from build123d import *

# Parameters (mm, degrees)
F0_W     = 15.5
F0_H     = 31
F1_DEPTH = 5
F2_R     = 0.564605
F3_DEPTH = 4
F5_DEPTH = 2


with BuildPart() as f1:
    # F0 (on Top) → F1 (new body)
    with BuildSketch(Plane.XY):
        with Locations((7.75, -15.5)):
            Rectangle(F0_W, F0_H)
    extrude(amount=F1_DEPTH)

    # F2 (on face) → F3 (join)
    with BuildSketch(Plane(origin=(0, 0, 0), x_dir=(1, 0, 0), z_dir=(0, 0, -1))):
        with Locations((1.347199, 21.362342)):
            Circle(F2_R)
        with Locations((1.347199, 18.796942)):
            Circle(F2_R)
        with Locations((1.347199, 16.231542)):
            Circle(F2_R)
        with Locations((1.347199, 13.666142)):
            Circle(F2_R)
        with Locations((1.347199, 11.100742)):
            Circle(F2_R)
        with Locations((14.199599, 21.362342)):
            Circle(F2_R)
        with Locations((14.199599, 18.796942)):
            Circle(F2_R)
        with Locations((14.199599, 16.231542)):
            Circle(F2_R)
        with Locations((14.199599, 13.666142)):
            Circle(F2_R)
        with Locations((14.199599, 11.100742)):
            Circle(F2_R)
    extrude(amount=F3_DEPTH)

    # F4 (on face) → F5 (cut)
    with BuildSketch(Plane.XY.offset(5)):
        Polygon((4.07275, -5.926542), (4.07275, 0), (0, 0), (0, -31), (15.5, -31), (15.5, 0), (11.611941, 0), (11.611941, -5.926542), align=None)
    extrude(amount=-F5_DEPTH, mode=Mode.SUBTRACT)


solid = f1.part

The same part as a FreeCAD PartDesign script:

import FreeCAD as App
import Part
import Sketcher
from FreeCAD import Vector
Q = App.Units.Quantity

doc = App.newDocument("Part")
body = doc.addObject("PartDesign::Body", "Body")

# Sketch on XY plane
sketch1 = doc.addObject("Sketcher::SketchObject", "Sketch")
body.addObject(sketch1)
sketch1.AttachmentSupport = (doc.XY_Plane, [""])
sketch1.MapMode = "FlatFace"
sketch1.addGeometry([
    Part.LineSegment(Vector(0, 0, 0), Vector(0, -31, 0)),
    Part.LineSegment(Vector(0, -31, 0), Vector(15.5, -31, 0)),
    Part.LineSegment(Vector(15.5, -31, 0), Vector(15.5, 0, 0)),
    Part.LineSegment(Vector(15.5, 0, 0), Vector(0, 0, 0)),
], False)
sketch1.addConstraint([
    Sketcher.Constraint("Coincident", 0, 2, 1, 1),
    Sketcher.Constraint("Coincident", 1, 2, 2, 1),
    Sketcher.Constraint("Coincident", 2, 2, 3, 1),
    Sketcher.Constraint("Coincident", 3, 2, 0, 1),
    Sketcher.Constraint("Vertical", 0),
    Sketcher.Constraint("Horizontal", 1),
    Sketcher.Constraint("Vertical", 2),
    Sketcher.Constraint("Horizontal", 3),
    Sketcher.Constraint("Coincident", 3, 2, -1, 1),
    Sketcher.Constraint("DistanceY", 0, 2, 0, 1, Q("31 mm")),
    Sketcher.Constraint("DistanceX", 1, 1, 1, 2, Q("15.5 mm")),
])
pad1 = doc.addObject("PartDesign::Pad", "Pad")
body.addObject(pad1)
pad1.Profile = sketch1
pad1.Length = 5

# Sketch on XY plane
sketch2 = doc.addObject("Sketcher::SketchObject", "Sketch001")
body.addObject(sketch2)
sketch2.AttachmentSupport = (doc.XY_Plane, [""])
sketch2.MapMode = "FlatFace"
sketch2.addGeometry([
    Part.Circle(Vector(1.347199, -21.362342, 0), Vector(0, 0, 1), 0.564605),  # 0
    Part.Circle(Vector(1.347199, -18.796942, 0), Vector(0, 0, 1), 0.564605),  # 1
    Part.Circle(Vector(1.347199, -16.231542, 0), Vector(0, 0, 1), 0.564605),  # 2
    Part.Circle(Vector(1.347199, -13.666142, 0), Vector(0, 0, 1), 0.564605),  # 3
    Part.Circle(Vector(1.347199, -11.100742, 0), Vector(0, 0, 1), 0.564605),  # 4
    Part.Circle(Vector(14.199599, -21.362342, 0), Vector(0, 0, 1), 0.564605),  # 5
    Part.Circle(Vector(14.199599, -18.796942, 0), Vector(0, 0, 1), 0.564605),  # 6
    Part.Circle(Vector(14.199599, -16.231542, 0), Vector(0, 0, 1), 0.564605),  # 7
    Part.Circle(Vector(14.199599, -13.666142, 0), Vector(0, 0, 1), 0.564605),  # 8
    Part.Circle(Vector(14.199599, -11.100742, 0), Vector(0, 0, 1), 0.564605),  # 9
], False)
sketch2.addConstraint([
    Sketcher.Constraint("Equal", 0, 1),
    Sketcher.Constraint("Equal", 1, 2),
    Sketcher.Constraint("Equal", 2, 3),
    Sketcher.Constraint("Equal", 3, 4),
    Sketcher.Constraint("Equal", 4, 5),
    Sketcher.Constraint("Equal", 5, 6),
    Sketcher.Constraint("Equal", 6, 7),
    Sketcher.Constraint("Equal", 7, 8),
    Sketcher.Constraint("Equal", 8, 9),
    Sketcher.Constraint("Horizontal", 0, 3, 5, 3),
    Sketcher.Constraint("Horizontal", 1, 3, 6, 3),
    Sketcher.Constraint("Horizontal", 2, 3, 7, 3),
    Sketcher.Constraint("Horizontal", 3, 3, 8, 3),
    Sketcher.Constraint("Horizontal", 4, 3, 9, 3),
    Sketcher.Constraint("Vertical", 0, 3, 1, 3),
    Sketcher.Constraint("Vertical", 1, 3, 2, 3),
    Sketcher.Constraint("Vertical", 2, 3, 3, 3),
    Sketcher.Constraint("Vertical", 3, 3, 4, 3),
    Sketcher.Constraint("Vertical", 5, 3, 6, 3),
    Sketcher.Constraint("Vertical", 6, 3, 7, 3),
    Sketcher.Constraint("Vertical", 7, 3, 8, 3),
    Sketcher.Constraint("Vertical", 8, 3, 9, 3),
    Sketcher.Constraint("Diameter", 0, Q("1.12921 mm")),
    Sketcher.Constraint("DistanceX", -1, 1, 0, 3, Q("1.347199 mm")),
    Sketcher.Constraint("DistanceX", -1, 1, 5, 3, Q("14.199599 mm")),
    Sketcher.Constraint("DistanceY", 0, 3, 1, 3, Q("2.5654 mm")),
    Sketcher.Constraint("DistanceY", 1, 3, 2, 3, Q("2.5654 mm")),
    Sketcher.Constraint("DistanceY", 2, 3, 3, 3, Q("2.5654 mm")),
    Sketcher.Constraint("DistanceY", 3, 3, 4, 3, Q("2.5654 mm")),
    Sketcher.Constraint("DistanceY", 0, 3, -1, 1, Q("21.362342 mm")),
])
pad2 = doc.addObject("PartDesign::Pad", "Pad001")
body.addObject(pad2)
pad2.Profile = sketch2
pad2.Length = 4
pad2.Reversed = True

# Sketch on XY plane
sketch3 = doc.addObject("Sketcher::SketchObject", "Sketch002")
body.addObject(sketch3)
sketch3.AttachmentSupport = (doc.XY_Plane, [""])
sketch3.MapMode = "FlatFace"
sketch3.AttachmentOffset = App.Placement(Vector(0, 0, 5), App.Rotation())
sketch3.addGeometry([
    Part.LineSegment(Vector(4.07275, -5.926542, 0), Vector(4.07275, 0, 0)),  # 0
    Part.LineSegment(Vector(4.07275, 0, 0), Vector(0, 0, 0)),  # 1
    Part.LineSegment(Vector(0, 0, 0), Vector(0, -31, 0)),  # 2
    Part.LineSegment(Vector(0, -31, 0), Vector(15.5, -31, 0)),  # 3
    Part.LineSegment(Vector(15.5, -31, 0), Vector(15.5, 0, 0)),  # 4
    Part.LineSegment(Vector(15.5, 0, 0), Vector(11.611941, 0, 0)),  # 5
    Part.LineSegment(Vector(11.611941, 0, 0), Vector(11.611941, -5.926542, 0)),  # 6
    Part.LineSegment(Vector(11.611941, -5.926542, 0), Vector(4.07275, -5.926542, 0)),  # 7
], False)
sketch3.addConstraint([
    Sketcher.Constraint("Coincident", 0, 2, 1, 1),
    Sketcher.Constraint("Coincident", 1, 2, 2, 1),
    Sketcher.Constraint("Coincident", 2, 2, 3, 1),
    Sketcher.Constraint("Coincident", 3, 2, 4, 1),
    Sketcher.Constraint("Coincident", 4, 2, 5, 1),
    Sketcher.Constraint("Coincident", 5, 2, 6, 1),
    Sketcher.Constraint("Coincident", 6, 2, 7, 1),
    Sketcher.Constraint("Coincident", 7, 2, 0, 1),
    Sketcher.Constraint("Vertical", 0),
    Sketcher.Constraint("Horizontal", 1),
    Sketcher.Constraint("Vertical", 2),
    Sketcher.Constraint("Horizontal", 3),
    Sketcher.Constraint("Vertical", 4),
    Sketcher.Constraint("Horizontal", 5),
    Sketcher.Constraint("Vertical", 6),
    Sketcher.Constraint("Horizontal", 7),
    Sketcher.Constraint("Coincident", 1, 2, -1, 1),
    Sketcher.Constraint("PointOnObject", 4, 2, -1),
    Sketcher.Constraint("DistanceY", 2, 2, 2, 1, Q("31 mm")),
    Sketcher.Constraint("DistanceX", 3, 1, 3, 2, Q("15.5 mm")),
    Sketcher.Constraint("DistanceX", 1, 2, 1, 1, Q("4.07275 mm")),
    Sketcher.Constraint("DistanceX", 5, 2, 5, 1, Q("3.888059 mm")),
    Sketcher.Constraint("DistanceY", 0, 1, 0, 2, Q("5.926542 mm")),
])
pocket1 = doc.addObject("PartDesign::Pocket", "Pocket")
body.addObject(pocket1)
pocket1.Profile = sketch3
pocket1.Length = 2

doc.recompute()
